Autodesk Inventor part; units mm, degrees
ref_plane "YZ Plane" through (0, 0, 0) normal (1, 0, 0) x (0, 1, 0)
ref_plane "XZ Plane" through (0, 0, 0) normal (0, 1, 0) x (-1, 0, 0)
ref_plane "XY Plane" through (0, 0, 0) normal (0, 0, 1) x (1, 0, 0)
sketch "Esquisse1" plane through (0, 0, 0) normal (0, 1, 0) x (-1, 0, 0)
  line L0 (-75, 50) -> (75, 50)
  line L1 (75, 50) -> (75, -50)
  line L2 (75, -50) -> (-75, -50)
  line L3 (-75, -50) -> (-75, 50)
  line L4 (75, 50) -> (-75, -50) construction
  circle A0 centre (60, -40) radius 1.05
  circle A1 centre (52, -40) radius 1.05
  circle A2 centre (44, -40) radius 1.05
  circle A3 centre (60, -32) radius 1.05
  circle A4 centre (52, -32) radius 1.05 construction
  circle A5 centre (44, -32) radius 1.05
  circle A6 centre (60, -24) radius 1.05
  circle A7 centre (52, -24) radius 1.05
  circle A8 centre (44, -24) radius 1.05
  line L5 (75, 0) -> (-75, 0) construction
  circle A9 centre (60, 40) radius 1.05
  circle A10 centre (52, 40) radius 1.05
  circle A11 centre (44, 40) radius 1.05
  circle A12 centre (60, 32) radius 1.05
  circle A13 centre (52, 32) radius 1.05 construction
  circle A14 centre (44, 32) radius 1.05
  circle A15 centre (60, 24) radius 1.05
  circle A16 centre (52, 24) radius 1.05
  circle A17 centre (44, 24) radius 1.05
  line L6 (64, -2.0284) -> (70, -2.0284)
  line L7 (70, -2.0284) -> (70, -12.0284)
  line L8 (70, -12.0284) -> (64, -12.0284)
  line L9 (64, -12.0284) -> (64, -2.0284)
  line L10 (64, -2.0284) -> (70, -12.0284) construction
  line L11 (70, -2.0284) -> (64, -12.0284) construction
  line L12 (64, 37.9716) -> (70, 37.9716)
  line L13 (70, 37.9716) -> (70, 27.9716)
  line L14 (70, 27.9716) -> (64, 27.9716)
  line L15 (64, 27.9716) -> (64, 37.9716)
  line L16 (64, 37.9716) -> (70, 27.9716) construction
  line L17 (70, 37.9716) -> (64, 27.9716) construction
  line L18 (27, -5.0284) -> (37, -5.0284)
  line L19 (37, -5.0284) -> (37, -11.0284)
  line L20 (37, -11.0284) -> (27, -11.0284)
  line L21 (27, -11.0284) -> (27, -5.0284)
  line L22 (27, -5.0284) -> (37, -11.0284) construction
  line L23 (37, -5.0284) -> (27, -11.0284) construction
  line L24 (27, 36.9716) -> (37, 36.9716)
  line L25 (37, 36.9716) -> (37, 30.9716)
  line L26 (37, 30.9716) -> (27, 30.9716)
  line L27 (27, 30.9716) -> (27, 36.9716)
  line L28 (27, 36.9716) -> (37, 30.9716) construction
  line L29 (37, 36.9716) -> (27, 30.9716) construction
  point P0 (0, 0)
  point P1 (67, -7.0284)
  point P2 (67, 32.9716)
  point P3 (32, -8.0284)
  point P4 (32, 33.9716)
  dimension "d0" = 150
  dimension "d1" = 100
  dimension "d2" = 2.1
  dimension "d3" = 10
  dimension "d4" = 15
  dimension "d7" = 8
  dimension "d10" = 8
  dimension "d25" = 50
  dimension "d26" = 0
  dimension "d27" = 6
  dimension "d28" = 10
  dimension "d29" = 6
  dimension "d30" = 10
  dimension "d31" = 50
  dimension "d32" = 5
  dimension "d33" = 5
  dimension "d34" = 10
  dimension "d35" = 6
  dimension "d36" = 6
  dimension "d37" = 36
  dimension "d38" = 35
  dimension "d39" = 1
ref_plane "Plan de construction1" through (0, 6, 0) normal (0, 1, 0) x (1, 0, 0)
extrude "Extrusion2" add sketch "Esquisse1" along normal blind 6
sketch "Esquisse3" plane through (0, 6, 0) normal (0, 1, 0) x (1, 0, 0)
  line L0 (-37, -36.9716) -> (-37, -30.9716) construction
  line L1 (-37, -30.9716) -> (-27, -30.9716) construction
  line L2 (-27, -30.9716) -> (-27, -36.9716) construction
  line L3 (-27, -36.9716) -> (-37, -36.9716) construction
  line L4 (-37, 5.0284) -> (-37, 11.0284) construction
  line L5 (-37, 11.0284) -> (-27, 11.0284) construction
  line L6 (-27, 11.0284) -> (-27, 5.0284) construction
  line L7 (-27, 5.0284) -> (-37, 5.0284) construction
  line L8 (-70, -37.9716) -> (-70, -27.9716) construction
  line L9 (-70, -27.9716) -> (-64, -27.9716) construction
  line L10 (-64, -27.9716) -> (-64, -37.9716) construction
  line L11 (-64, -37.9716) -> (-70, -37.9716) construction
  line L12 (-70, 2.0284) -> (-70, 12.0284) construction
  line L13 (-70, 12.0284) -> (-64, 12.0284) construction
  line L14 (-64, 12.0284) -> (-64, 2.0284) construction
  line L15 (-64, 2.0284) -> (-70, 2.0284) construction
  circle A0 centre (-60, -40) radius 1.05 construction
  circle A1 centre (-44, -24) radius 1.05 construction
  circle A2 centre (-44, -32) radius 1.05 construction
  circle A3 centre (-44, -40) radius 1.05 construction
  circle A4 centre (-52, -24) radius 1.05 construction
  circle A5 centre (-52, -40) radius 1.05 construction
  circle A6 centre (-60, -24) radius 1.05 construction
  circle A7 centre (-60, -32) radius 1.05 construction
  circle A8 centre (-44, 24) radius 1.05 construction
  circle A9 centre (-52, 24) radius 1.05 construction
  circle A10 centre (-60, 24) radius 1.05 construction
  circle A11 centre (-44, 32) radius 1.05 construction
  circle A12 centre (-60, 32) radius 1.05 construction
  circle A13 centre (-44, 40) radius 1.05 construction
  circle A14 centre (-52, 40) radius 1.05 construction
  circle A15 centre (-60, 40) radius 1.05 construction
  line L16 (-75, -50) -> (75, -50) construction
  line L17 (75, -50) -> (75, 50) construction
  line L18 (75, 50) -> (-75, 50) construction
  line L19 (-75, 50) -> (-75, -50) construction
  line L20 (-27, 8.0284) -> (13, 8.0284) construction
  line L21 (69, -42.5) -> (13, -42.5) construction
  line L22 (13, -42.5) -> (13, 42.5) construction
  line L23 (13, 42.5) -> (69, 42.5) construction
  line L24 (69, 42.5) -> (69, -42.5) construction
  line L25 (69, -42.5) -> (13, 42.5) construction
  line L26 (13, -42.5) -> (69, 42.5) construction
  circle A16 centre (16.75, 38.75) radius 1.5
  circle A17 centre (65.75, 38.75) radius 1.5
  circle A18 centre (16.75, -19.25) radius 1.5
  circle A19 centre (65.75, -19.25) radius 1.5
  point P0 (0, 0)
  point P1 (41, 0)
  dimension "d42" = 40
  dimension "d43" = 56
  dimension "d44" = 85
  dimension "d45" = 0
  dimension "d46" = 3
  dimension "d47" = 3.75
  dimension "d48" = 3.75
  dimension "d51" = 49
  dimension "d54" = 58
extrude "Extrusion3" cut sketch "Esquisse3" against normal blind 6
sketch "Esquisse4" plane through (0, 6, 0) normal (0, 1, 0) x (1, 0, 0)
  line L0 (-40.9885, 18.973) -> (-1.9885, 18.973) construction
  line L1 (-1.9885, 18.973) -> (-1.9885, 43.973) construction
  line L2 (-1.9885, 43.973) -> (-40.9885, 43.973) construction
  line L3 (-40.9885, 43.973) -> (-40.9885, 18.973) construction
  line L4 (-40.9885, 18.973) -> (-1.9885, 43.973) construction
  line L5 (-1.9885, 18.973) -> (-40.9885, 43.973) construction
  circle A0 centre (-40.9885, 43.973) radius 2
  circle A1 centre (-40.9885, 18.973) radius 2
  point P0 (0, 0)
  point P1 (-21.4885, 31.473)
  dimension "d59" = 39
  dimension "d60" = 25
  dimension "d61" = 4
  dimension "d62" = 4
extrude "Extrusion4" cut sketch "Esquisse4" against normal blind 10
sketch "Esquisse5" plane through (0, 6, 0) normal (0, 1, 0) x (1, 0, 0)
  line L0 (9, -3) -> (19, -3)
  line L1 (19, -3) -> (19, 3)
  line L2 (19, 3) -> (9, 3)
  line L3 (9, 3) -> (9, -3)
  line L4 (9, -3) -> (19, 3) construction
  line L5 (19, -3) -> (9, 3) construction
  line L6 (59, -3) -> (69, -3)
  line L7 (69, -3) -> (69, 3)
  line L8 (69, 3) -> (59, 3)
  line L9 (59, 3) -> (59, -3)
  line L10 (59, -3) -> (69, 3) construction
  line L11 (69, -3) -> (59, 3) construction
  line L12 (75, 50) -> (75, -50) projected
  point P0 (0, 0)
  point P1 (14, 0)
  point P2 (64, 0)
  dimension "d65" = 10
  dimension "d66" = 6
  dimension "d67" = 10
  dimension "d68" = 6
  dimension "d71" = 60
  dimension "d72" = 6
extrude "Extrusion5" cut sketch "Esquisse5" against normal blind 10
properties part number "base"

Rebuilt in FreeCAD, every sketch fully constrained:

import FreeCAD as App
import Part
import Sketcher

V = App.Vector
Q = App.Units.Quantity


def add_polygon(sketch, points):
    """Adds a closed chain of lines whose ends are joined by coincident constraints."""
    first, n = sketch.GeometryCount, len(points)
    for a, b in zip(points, points[1:] + points[:1]):
        sketch.addGeometry(Part.LineSegment(App.Vector(*a, 0), App.Vector(*b, 0)), False)
    for i in range(n):
        sketch.addConstraint(Sketcher.Constraint("Coincident", first + i, 2, first + (i + 1) % n, 1))

doc = App.newDocument("Part")
params = doc.addObject("Spreadsheet::Sheet", "Params")
for row, (alias, value) in enumerate([
    ("sketch1_diameter", "2.1 mm"),
    ("sketch1_width", "150 mm"),
    ("sketch1_width2", "10 mm"),
    ("sketch1_width3", "6 mm"),
    ("sketch1_height", "100 mm"),
    ("pad1_length", "6 mm"),
    ("sketch2_diameter", "3 mm"),
    ("pocket1_length", "6 mm"),
    ("sketch3_diameter", "4 mm"),
    ("pocket2_length", "10 mm"),
    ("sketch4_width", "10 mm"),
    ("sketch4_height", "6 mm"),
    ("pocket3_length", "10 mm"),
], start=1):
    params.set(f"A{row}", alias)
    params.set(f"B{row}", "=" + value)
    params.setAlias(f"B{row}", alias)

body = doc.addObject("PartDesign::Body", "Body")

# Sketch on XZ plane
sketch1 = body.newObject("Sketcher::SketchObject", "Sketch")
sketch1.AttachmentSupport = (doc.getObject("XZ_Plane"), [""])
sketch1.MapMode = "FlatFace"
add_polygon(sketch1, [(-75, 50), (75, 50), (75, -50), (-75, -50)])  # lines 0-3
sketch1.addGeometry(Part.Circle(V(-44, -40, 0), V(0, 0, 1), 1.1), False)  # 4
sketch1.addGeometry(Part.Circle(V(-52, -40, 0), V(0, 0, 1), 1.1), False)  # 5
sketch1.addGeometry(Part.Circle(V(-60, -40, 0), V(0, 0, 1), 1.1), False)  # 6
sketch1.addGeometry(Part.Circle(V(-44, -32, 0), V(0, 0, 1), 1.1), False)  # 7
sketch1.addGeometry(Part.Circle(V(-60, -32, 0), V(0, 0, 1), 1.1), False)  # 8
add_polygon(sketch1, [(-27, -11), (-27, -5), (-37, -5), (-37, -11)])  # lines 9-12
sketch1.addGeometry(Part.Circle(V(-44, -24, 0), V(0, 0, 1), 1.1), False)  # 13
sketch1.addGeometry(Part.Circle(V(-52, -24, 0), V(0, 0, 1), 1.1), False)  # 14
sketch1.addGeometry(Part.Circle(V(-60, -24, 0), V(0, 0, 1), 1.1), False)  # 15
add_polygon(sketch1, [(-64, -12), (-64, -2), (-70, -2), (-70, -12)])  # lines 16-19
sketch1.addGeometry(Part.Circle(V(-44, 24, 0), V(0, 0, 1), 1.1), False)  # 20
sketch1.addGeometry(Part.Circle(V(-52, 24, 0), V(0, 0, 1), 1.1), False)  # 21
sketch1.addGeometry(Part.Circle(V(-60, 24, 0), V(0, 0, 1), 1.1), False)  # 22
add_polygon(sketch1, [(-27, 31), (-27, 37), (-37, 37), (-37, 31)])  # lines 23-26
sketch1.addGeometry(Part.Circle(V(-44, 32, 0), V(0, 0, 1), 1.1), False)  # 27
sketch1.addGeometry(Part.Circle(V(-60, 32, 0), V(0, 0, 1), 1.1), False)  # 28
add_polygon(sketch1, [(-64, 28), (-64, 38), (-70, 38), (-70, 28)])  # lines 29-32
sketch1.addGeometry(Part.Circle(V(-44, 40, 0), V(0, 0, 1), 1.1), False)  # 33
sketch1.addGeometry(Part.Circle(V(-52, 40, 0), V(0, 0, 1), 1.1), False)  # 34
sketch1.addGeometry(Part.Circle(V(-60, 40, 0), V(0, 0, 1), 1.1), False)  # 35
sketch1.addConstraint(Sketcher.Constraint("Horizontal", 0))
sketch1.addConstraint(Sketcher.Constraint("Vertical", 1))
sketch1.addConstraint(Sketcher.Constraint("Horizontal", 2))
sketch1.addConstraint(Sketcher.Constraint("Vertical", 3))
sketch1.addConstraint(Sketcher.Constraint("Vertical", 9))
sketch1.addConstraint(Sketcher.Constraint("Horizontal", 10))
sketch1.addConstraint(Sketcher.Constraint("Vertical", 11))
sketch1.addConstraint(Sketcher.Constraint("Horizontal", 12))
sketch1.addConstraint(Sketcher.Constraint("Vertical", 16))
sketch1.addConstraint(Sketcher.Constraint("Horizontal", 17))
sketch1.addConstraint(Sketcher.Constraint("Vertical", 18))
sketch1.addConstraint(Sketcher.Constraint("Horizontal", 19))
sketch1.addConstraint(Sketcher.Constraint("Vertical", 23))
sketch1.addConstraint(Sketcher.Constraint("Horizontal", 24))
sketch1.addConstraint(Sketcher.Constraint("Vertical", 25))
sketch1.addConstraint(Sketcher.Constraint("Horizontal", 26))
sketch1.addConstraint(Sketcher.Constraint("Vertical", 29))
sketch1.addConstraint(Sketcher.Constraint("Horizontal", 30))
sketch1.addConstraint(Sketcher.Constraint("Vertical", 31))
sketch1.addConstraint(Sketcher.Constraint("Horizontal", 32))
sketch1.addConstraint(Sketcher.Constraint("Equal", 4, 5))
sketch1.addConstraint(Sketcher.Constraint("Equal", 5, 6))
sketch1.addConstraint(Sketcher.Constraint("Equal", 6, 7))
sketch1.addConstraint(Sketcher.Constraint("Equal", 7, 8))
sketch1.addConstraint(Sketcher.Constraint("Equal", 8, 13))
sketch1.addConstraint(Sketcher.Constraint("Equal", 13, 14))
sketch1.addConstraint(Sketcher.Constraint("Equal", 14, 15))
sketch1.addConstraint(Sketcher.Constraint("Equal", 15, 20))
sketch1.addConstraint(Sketcher.Constraint("Equal", 20, 21))
sketch1.addConstraint(Sketcher.Constraint("Equal", 21, 22))
sketch1.addConstraint(Sketcher.Constraint("Equal", 22, 27))
sketch1.addConstraint(Sketcher.Constraint("Equal", 27, 28))
sketch1.addConstraint(Sketcher.Constraint("Equal", 28, 33))
sketch1.addConstraint(Sketcher.Constraint("Equal", 33, 34))
sketch1.addConstraint(Sketcher.Constraint("Equal", 34, 35))
sketch1.addConstraint(Sketcher.Constraint("Symmetric", 0, 2, 2, 2, -1, 1))
sketch1.addConstraint(Sketcher.Constraint("Symmetric", 13, 3, 20, 3, -1))
sketch1.addConstraint(Sketcher.Constraint("Symmetric", 14, 3, 21, 3, -1))
sketch1.addConstraint(Sketcher.Constraint("Symmetric", 15, 3, 22, 3, -1))
sketch1.addConstraint(Sketcher.Constraint("Symmetric", 7, 3, 27, 3, -1))
sketch1.addConstraint(Sketcher.Constraint("Symmetric", 8, 3, 28, 3, -1))
sketch1.addConstraint(Sketcher.Constraint("Symmetric", 4, 3, 33, 3, -1))
sketch1.addConstraint(Sketcher.Constraint("Symmetric", 5, 3, 34, 3, -1))
sketch1.addConstraint(Sketcher.Constraint("Symmetric", 6, 3, 35, 3, -1))
sketch1.addConstraint(Sketcher.Constraint("Horizontal", 4, 3, 5, 3))
sketch1.addConstraint(Sketcher.Constraint("Horizontal", 5, 3, 6, 3))
sketch1.addConstraint(Sketcher.Constraint("Horizontal", 7, 3, 8, 3))
sketch1.addConstraint(Sketcher.Constraint("Horizontal", 13, 3, 14, 3))
sketch1.addConstraint(Sketcher.Constraint("Horizontal", 14, 3, 15, 3))
sketch1.addConstraint(Sketcher.Constraint("Vertical", 4, 3, 7, 3))
sketch1.addConstraint(Sketcher.Constraint("Vertical", 6, 3, 8, 3))
sketch1.addConstraint(Sketcher.Constraint("Vertical", 7, 3, 13, 3))
sketch1.addConstraint(Sketcher.Constraint("Vertical", 5, 3, 14, 3))
sketch1.addConstraint(Sketcher.Constraint("Vertical", 8, 3, 15, 3))
sketch1.addConstraint(Sketcher.Constraint("Vertical", 12, 2, 23, 2))
sketch1.addConstraint(Sketcher.Constraint("Vertical", 11, 2, 24, 2))
sketch1.addConstraint(Sketcher.Constraint("Vertical", 19, 2, 29, 2))
sketch1.addConstraint(Sketcher.Constraint("Vertical", 18, 2, 30, 2))
sketch1.addConstraint(Sketcher.Constraint("Equal", 32, 9))
sketch1.addConstraint(Sketcher.Constraint("Equal", 26, 16))
sketch1.addConstraint(Sketcher.Constraint("Equal", 11, 23))
sketch1.addConstraint(Sketcher.Constraint("Equal", 18, 29))
sketch1.addConstraint(Sketcher.Constraint("Diameter", 4, Q("2.1 mm")))
sketch1.addConstraint(Sketcher.Constraint("DistanceX", 0, 1, 0, 2, Q("150 mm")))
sketch1.addConstraint(Sketcher.Constraint("DistanceX", 10, 2, 10, 1, Q("10 mm")))
sketch1.addConstraint(Sketcher.Constraint("DistanceX", 17, 2, 17, 1, Q("6 mm")))
sketch1.addConstraint(Sketcher.Constraint("DistanceY", 1, 2, 1, 1, Q("100 mm")))
sketch1.addConstraint(Sketcher.Constraint("DistanceX", 5, 3, 4, 3, Q("8 mm")))
sketch1.addConstraint(Sketcher.Constraint("DistanceX", 6, 3, 5, 3, Q("8 mm")))
sketch1.addConstraint(Sketcher.Constraint("DistanceY", 4, 3, 7, 3, Q("8 mm")))
sketch1.addConstraint(Sketcher.Constraint("DistanceY", 7, 3, 13, 3, Q("8 mm")))
sketch1.addConstraint(Sketcher.Constraint("DistanceY", 33, 3, 0, 2, Q("10 mm")))
sketch1.addConstraint(Sketcher.Constraint("DistanceX", 2, 2, 6, 3, Q("15 mm")))
sketch1.addConstraint(Sketcher.Constraint("DistanceX", 14, 3, 10, 2, Q("15 mm")))
sketch1.addConstraint(Sketcher.Constraint("DistanceX", 17, 2, 15, 3, Q("10 mm")))
sketch1.addConstraint(Sketcher.Constraint("DistanceY", 10, 2, 16, 2, Q("3 mm")))
sketch1.addConstraint(Sketcher.Constraint("DistanceY", 9, 2, -1, 1, Q("5.0284 mm")))
sketch1.addConstraint(Sketcher.Constraint("DistanceY", -1, 1, 23, 2, Q("36.9716 mm")))
sketch1.addConstraint(Sketcher.Constraint("DistanceY", -1, 1, 29, 2, Q("37.9716 mm")))
sketch1.setExpression("Constraints[82]", "Params.sketch1_diameter")
sketch1.setExpression("Constraints[83]", "Params.sketch1_width")
sketch1.setExpression("Constraints[84]", "Params.sketch1_width2")
sketch1.setExpression("Constraints[85]", "Params.sketch1_width3")
sketch1.setExpression("Constraints[86]", "Params.sketch1_height")
pad1 = body.newObject("PartDesign::Pad", "Pad")
pad1.Profile = sketch1
pad1.setExpression("Length", "Params.pad1_length")
pad1.Reversed = True

# Sketch on XZ plane
sketch2 = body.newObject("Sketcher::SketchObject", "Sketch001")
sketch2.AttachmentSupport = (doc.getObject("XZ_Plane"), [""])
sketch2.MapMode = "FlatFace"
sketch2.AttachmentOffset = App.Placement(V(0, 0, -6), App.Rotation())
sketch2.addGeometry(Part.Circle(V(16.8, -38.8, 0), V(0, 0, 1), 1.5), False)
sketch2.addGeometry(Part.Circle(V(65.8, -38.8, 0), V(0, 0, 1), 1.5), False)
sketch2.addGeometry(Part.Circle(V(16.8, 19.2, 0), V(0, 0, 1), 1.5), False)
sketch2.addGeometry(Part.Circle(V(65.8, 19.2, 0), V(0, 0, 1), 1.5), False)
sketch2.addConstraint(Sketcher.Constraint("Equal", 0, 1))
sketch2.addConstraint(Sketcher.Constraint("Equal", 1, 2))
sketch2.addConstraint(Sketcher.Constraint("Equal", 2, 3))
sketch2.addConstraint(Sketcher.Constraint("Horizontal", 0, 3, 1, 3))
sketch2.addConstraint(Sketcher.Constraint("Horizontal", 2, 3, 3, 3))
sketch2.addConstraint(Sketcher.Constraint("Vertical", 0, 3, 2, 3))
sketch2.addConstraint(Sketcher.Constraint("Vertical", 1, 3, 3, 3))
sketch2.addConstraint(Sketcher.Constraint("Diameter", 0, Q("3 mm")))
sketch2.addConstraint(Sketcher.Constraint("DistanceX", 0, 3, 1, 3, Q("49 mm")))
sketch2.addConstraint(Sketcher.Constraint("DistanceY", 0, 3, 2, 3, Q("58 mm")))
sketch2.addConstraint(Sketcher.Constraint("DistanceX", -1, 1, 0, 3, Q("16.75 mm")))
sketch2.addConstraint(Sketcher.Constraint("DistanceY", 0, 3, -1, 1, Q("38.75 mm")))
sketch2.setExpression("Constraints[7]", "Params.sketch2_diameter")
pocket1 = body.newObject("PartDesign::Pocket", "Pocket")
pocket1.Profile = sketch2
pocket1.setExpression("Length", "Params.pocket1_length")
pocket1.Reversed = True

# Sketch on XZ plane
sketch3 = body.newObject("Sketcher::SketchObject", "Sketch002")
sketch3.AttachmentSupport = (doc.getObject("XZ_Plane"), [""])
sketch3.MapMode = "FlatFace"
sketch3.AttachmentOffset = App.Placement(V(0, 0, -6), App.Rotation())
sketch3.addGeometry(Part.Circle(V(-41, -44, 0), V(0, 0, 1), 2), False)
sketch3.addGeometry(Part.Circle(V(-41, -19, 0), V(0, 0, 1), 2), False)
sketch3.addConstraint(Sketcher.Constraint("Equal", 0, 1))
sketch3.addConstraint(Sketcher.Constraint("Vertical", 0, 3, 1, 3))
sketch3.addConstraint(Sketcher.Constraint("Diameter", 0, Q("4 mm")))
sketch3.addConstraint(Sketcher.Constraint("DistanceY", 0, 3, 1, 3, Q("25 mm")))
sketch3.addConstraint(Sketcher.Constraint("DistanceY", 0, 3, -1, 1, Q("43.973 mm")))
sketch3.addConstraint(Sketcher.Constraint("DistanceX", 0, 3, -1, 1, Q("40.9885 mm")))
sketch3.setExpression("Constraints[2]", "Params.sketch3_diameter")
pocket2 = body.newObject("PartDesign::Pocket", "Pocket001")
pocket2.Profile = sketch3
pocket2.setExpression("Length", "Params.pocket2_length")
pocket2.Reversed = True

# Sketch on XZ plane
sketch4 = body.newObject("Sketcher::SketchObject", "Sketch003")
sketch4.AttachmentSupport = (doc.getObject("XZ_Plane"), [""])
sketch4.MapMode = "FlatFace"
sketch4.AttachmentOffset = App.Placement(V(0, 0, -6), App.Rotation())
add_polygon(sketch4, [(9, -3), (9, 3), (19, 3), (19, -3)])  # lines 0-3
add_polygon(sketch4, [(59, -3), (59, 3), (69, 3), (69, -3)])  # lines 4-7
sketch4.addConstraint(Sketcher.Constraint("Vertical", 0))
sketch4.addConstraint(Sketcher.Constraint("Horizontal", 1))
sketch4.addConstraint(Sketcher.Constraint("Vertical", 2))
sketch4.addConstraint(Sketcher.Constraint("Horizontal", 3))
sketch4.addConstraint(Sketcher.Constraint("Vertical", 4))
sketch4.addConstraint(Sketcher.Constraint("Horizontal", 5))
sketch4.addConstraint(Sketcher.Constraint("Vertical", 6))
sketch4.addConstraint(Sketcher.Constraint("Horizontal", 7))
sketch4.addConstraint(Sketcher.Constraint("Horizontal", 1, 2, 4, 2))
sketch4.addConstraint(Sketcher.Constraint("Horizontal", 3, 2, 6, 2))
sketch4.addConstraint(Sketcher.Constraint("Equal", 3, 5))
sketch4.addConstraint(Sketcher.Constraint("DistanceX", 1, 1, 1, 2, Q("10 mm")))
sketch4.addConstraint(Sketcher.Constraint("DistanceY", 0, 1, 0, 2, Q("6 mm")))
sketch4.addConstraint(Sketcher.Constraint("DistanceX", 0, 2, 5, 2, Q("60 mm")))
sketch4.addConstraint(Sketcher.Constraint("DistanceX", -1, 1, 0, 2, Q("9 mm")))
sketch4.addConstraint(Sketcher.Constraint("DistanceY", -1, 1, 0, 2, Q("3 mm")))
sketch4.setExpression("Constraints[19]", "Params.sketch4_width")
sketch4.setExpression("Constraints[20]", "Params.sketch4_height")
pocket3 = body.newObject("PartDesign::Pocket", "Pocket002")
pocket3.Profile = sketch4
pocket3.setExpression("Length", "Params.pocket3_length")
pocket3.Reversed = True

doc.recompute()
